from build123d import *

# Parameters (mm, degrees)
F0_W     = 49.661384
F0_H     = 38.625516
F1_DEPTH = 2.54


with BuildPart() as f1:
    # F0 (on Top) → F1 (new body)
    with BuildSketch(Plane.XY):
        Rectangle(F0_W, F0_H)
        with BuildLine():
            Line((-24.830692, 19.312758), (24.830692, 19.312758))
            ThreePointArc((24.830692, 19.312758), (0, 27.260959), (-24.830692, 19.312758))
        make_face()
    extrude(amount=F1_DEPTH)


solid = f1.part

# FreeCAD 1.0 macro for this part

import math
import FreeCAD as App
import Part
import Sketcher

V = App.Vector
Q = App.Units.Quantity

doc = App.newDocument("Part")
params = doc.addObject("Spreadsheet::Sheet", "Params")
for row, (alias, value) in enumerate([
    ("pad1_length", "0.1 in"),
], start=1):
    params.set(f"A{row}", alias)
    params.set(f"B{row}", "=" + value)
    params.setAlias(f"B{row}", alias)

body = doc.addObject("PartDesign::Body", "Body")

# Sketch on XY plane
sketch1 = doc.addObject("Sketcher::SketchObject", "Sketch")
body.addObject(sketch1)
sketch1.AttachmentSupport = (doc.XY_Plane, [""])
sketch1.MapMode = "FlatFace"
sketch1.addGeometry(Part.LineSegment(V(-25, 19, 0), V(-25, -19, 0)), False)
sketch1.addGeometry(Part.LineSegment(V(-25, -19, 0), V(25, -19, 0)), False)
sketch1.addGeometry(Part.LineSegment(V(25, -19, 0), V(25, 19, 0)), False)
sketch1.addGeometry(Part.ArcOfCircle(Part.Circle(V(0, -15, 0), V(0, 0, 1), 43), math.radians(55), math.radians(125)), False)
sketch1.addConstraint(Sketcher.Constraint("Coincident", 0, 2, 1, 1))
sketch1.addConstraint(Sketcher.Constraint("Coincident", 1, 2, 2, 1))
sketch1.addConstraint(Sketcher.Constraint("Coincident", 2, 2, 3, 1))
sketch1.addConstraint(Sketcher.Constraint("Coincident", 3, 2, 0, 1))
sketch1.addConstraint(Sketcher.Constraint("Vertical", 0))
sketch1.addConstraint(Sketcher.Constraint("Horizontal", 1))
sketch1.addConstraint(Sketcher.Constraint("Vertical", 2))
sketch1.addConstraint(Sketcher.Constraint("Symmetric", 0, 2, 2, 2, -1, 1))
sketch1.addConstraint(Sketcher.Constraint("PointOnObject", 3, 3, -2))
sketch1.addConstraint(Sketcher.Constraint("Radius", 3, Q("42.760441 mm")))
sketch1.addConstraint(Sketcher.Constraint("DistanceX", 1, 1, 1, 2, Q("49.661384 mm")))
sketch1.addConstraint(Sketcher.Constraint("DistanceY", 0, 2, 0, 1, Q("38.625516 mm")))
pad1 = doc.addObject("PartDesign::Pad", "Pad")
body.addObject(pad1)
pad1.Profile = sketch1
pad1.setExpression("Length", "Params.pad1_length")

doc.recompute()
